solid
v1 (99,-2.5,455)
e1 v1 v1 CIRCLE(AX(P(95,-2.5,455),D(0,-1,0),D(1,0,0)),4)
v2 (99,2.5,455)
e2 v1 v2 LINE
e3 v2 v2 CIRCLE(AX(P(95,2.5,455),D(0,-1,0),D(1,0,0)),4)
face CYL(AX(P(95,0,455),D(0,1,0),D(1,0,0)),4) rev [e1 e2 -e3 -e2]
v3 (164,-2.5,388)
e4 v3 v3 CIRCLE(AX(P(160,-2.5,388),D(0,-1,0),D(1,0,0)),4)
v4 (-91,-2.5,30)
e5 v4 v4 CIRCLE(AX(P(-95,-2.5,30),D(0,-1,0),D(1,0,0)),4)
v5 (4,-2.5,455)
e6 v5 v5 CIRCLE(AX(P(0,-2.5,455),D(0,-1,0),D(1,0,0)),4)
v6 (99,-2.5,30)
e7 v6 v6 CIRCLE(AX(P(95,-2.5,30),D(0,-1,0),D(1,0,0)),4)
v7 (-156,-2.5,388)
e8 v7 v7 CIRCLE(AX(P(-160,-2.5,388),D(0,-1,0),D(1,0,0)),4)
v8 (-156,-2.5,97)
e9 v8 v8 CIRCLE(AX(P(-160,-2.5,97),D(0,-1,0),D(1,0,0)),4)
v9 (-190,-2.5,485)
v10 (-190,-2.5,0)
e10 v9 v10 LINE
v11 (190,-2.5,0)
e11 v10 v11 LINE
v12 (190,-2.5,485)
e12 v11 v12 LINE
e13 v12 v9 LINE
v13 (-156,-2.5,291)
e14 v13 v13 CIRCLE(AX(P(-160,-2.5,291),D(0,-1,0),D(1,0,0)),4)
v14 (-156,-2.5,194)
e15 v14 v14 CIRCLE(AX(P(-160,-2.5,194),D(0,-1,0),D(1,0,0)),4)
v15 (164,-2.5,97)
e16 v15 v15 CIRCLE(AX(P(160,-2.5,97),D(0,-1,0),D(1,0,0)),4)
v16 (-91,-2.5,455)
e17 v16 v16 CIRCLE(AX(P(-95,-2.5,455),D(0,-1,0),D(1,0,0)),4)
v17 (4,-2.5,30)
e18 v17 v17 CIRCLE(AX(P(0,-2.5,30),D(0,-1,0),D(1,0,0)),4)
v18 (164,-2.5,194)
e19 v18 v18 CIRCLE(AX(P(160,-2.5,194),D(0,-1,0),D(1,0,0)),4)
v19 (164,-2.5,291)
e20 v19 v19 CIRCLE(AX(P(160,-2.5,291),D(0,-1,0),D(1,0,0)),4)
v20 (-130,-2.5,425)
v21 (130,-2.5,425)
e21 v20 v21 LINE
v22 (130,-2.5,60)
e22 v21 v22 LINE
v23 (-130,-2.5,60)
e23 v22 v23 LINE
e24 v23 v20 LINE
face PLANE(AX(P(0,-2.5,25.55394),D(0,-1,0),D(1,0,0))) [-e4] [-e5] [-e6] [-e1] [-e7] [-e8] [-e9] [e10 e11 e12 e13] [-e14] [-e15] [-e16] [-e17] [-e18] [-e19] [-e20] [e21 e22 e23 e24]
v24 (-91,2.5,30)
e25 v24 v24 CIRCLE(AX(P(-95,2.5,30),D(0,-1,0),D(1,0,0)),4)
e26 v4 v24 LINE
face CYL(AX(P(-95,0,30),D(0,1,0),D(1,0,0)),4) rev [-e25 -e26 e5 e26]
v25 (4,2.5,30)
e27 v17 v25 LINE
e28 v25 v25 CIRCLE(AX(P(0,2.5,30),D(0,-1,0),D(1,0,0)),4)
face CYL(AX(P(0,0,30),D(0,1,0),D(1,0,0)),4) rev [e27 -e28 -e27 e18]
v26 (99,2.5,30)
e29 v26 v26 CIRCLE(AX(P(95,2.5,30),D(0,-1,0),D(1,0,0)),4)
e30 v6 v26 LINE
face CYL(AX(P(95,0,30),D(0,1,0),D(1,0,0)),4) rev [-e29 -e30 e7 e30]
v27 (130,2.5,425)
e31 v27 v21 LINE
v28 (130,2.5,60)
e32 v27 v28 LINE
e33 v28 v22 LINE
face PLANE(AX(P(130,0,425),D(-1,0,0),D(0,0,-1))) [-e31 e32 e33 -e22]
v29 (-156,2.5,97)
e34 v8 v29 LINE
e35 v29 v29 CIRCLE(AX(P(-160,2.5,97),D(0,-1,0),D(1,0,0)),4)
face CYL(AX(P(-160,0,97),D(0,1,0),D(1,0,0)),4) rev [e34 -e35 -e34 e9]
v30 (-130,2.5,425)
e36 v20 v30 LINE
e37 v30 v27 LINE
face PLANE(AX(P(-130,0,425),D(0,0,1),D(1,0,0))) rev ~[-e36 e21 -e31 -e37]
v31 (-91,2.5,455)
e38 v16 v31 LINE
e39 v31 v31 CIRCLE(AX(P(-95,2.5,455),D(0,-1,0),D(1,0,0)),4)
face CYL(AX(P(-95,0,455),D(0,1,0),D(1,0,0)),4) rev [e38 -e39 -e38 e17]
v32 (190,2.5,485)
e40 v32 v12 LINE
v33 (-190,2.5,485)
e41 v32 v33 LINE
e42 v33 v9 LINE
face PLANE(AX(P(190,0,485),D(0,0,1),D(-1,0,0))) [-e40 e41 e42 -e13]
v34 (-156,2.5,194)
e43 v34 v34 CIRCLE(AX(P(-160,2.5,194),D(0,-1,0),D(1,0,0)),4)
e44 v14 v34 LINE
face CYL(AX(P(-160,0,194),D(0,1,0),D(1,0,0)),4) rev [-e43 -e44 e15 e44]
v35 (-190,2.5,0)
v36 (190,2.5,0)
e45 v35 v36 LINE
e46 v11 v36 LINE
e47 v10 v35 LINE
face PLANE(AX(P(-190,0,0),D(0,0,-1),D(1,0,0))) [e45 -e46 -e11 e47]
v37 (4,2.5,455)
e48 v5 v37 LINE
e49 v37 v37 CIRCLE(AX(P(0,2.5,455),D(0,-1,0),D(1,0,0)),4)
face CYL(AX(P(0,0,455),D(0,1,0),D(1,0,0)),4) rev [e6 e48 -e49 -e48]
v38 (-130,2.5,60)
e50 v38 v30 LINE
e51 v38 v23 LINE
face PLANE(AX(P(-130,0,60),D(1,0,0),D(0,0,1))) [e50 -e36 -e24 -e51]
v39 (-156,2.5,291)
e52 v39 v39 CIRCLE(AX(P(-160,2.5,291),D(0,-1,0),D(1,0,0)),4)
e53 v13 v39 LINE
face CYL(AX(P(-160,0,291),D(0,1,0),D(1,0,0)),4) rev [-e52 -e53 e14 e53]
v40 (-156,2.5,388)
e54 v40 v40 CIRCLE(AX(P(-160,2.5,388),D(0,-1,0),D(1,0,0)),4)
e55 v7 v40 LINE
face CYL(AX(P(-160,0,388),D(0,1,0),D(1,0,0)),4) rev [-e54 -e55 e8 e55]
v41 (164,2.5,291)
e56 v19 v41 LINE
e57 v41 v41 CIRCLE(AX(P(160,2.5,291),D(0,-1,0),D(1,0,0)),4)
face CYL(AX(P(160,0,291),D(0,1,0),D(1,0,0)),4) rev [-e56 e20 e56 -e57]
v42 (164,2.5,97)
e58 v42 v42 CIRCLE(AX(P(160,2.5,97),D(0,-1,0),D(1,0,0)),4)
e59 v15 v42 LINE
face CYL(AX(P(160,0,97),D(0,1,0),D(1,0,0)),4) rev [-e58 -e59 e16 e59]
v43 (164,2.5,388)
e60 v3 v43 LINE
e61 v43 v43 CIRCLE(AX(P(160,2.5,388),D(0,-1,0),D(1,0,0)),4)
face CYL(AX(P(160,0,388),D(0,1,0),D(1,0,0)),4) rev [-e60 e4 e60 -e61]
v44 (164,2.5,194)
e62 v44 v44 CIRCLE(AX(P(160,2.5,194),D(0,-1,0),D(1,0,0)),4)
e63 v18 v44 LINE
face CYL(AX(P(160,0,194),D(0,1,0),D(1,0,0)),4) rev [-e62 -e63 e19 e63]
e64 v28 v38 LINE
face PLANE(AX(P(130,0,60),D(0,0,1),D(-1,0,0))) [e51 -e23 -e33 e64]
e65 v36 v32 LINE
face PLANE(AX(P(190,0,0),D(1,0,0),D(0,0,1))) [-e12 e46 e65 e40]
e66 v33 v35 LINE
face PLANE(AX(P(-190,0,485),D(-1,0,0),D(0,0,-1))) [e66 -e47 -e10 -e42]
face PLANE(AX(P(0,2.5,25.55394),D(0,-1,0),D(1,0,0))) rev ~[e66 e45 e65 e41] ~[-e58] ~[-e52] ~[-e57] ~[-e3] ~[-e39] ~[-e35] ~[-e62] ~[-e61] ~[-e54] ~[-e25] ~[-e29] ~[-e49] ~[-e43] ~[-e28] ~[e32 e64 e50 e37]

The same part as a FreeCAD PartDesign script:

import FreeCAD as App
import Part
import Sketcher
from FreeCAD import Vector

doc = App.newDocument("Part")
params = doc.addObject("Spreadsheet::Sheet", "Params")
for row, (alias, value) in enumerate([
    ("sketch1_diameter", "8 mm"),
    ("sketch1_width", "380 mm"),
    ("sketch1_width2", "260 mm"),
    ("sketch1_height", "485 mm"),
    ("sketch1_height2", "365 mm"),
    ("pad1_length", "5 mm"),
], start=1):
    params.set(f"A{row}", alias)
    params.set(f"B{row}", "=" + value)
    params.setAlias(f"B{row}", alias)

body = doc.addObject("PartDesign::Body", "Body")

# Sketch on XZ plane
sketch1 = doc.addObject("Sketcher::SketchObject", "Sketch")
body.addObject(sketch1)
sketch1.AttachmentSupport = (doc.XZ_Plane, [""])
sketch1.MapMode = "FlatFace"
sketch1.addGeometry([
    Part.LineSegment(Vector(190, 0, 0), Vector(190, 485, 0)),  # 0
    Part.LineSegment(Vector(190, 485, 0), Vector(-190, 485, 0)),  # 1
    Part.LineSegment(Vector(-190, 485, 0), Vector(-190, 0, 0)),  # 2
    Part.LineSegment(Vector(-190, 0, 0), Vector(190, 0, 0)),  # 3
    Part.Circle(Vector(-95, 30, 0), Vector(0, 0, 1), 4),  # 4
    Part.Circle(Vector(-160, 97, 0), Vector(0, 0, 1), 4),  # 5
    Part.Circle(Vector(-160, 194, 0), Vector(0, 0, 1), 4),  # 6
    Part.Circle(Vector(0, 30, 0), Vector(0, 0, 1), 4),  # 7
    Part.Circle(Vector(95, 30, 0), Vector(0, 0, 1), 4),  # 8
    Part.Circle(Vector(160, 97, 0), Vector(0, 0, 1), 4),  # 9
    Part.Circle(Vector(160, 194, 0), Vector(0, 0, 1), 4),  # 10
    Part.Circle(Vector(-160, 291, 0), Vector(0, 0, 1), 4),  # 11
    Part.Circle(Vector(-160, 388, 0), Vector(0, 0, 1), 4),  # 12
    Part.Circle(Vector(-95, 455, 0), Vector(0, 0, 1), 4),  # 13
    Part.LineSegment(Vector(130, 60, 0), Vector(-130, 60, 0)),  # 14
    Part.LineSegment(Vector(-130, 60, 0), Vector(-130, 425, 0)),  # 15
    Part.LineSegment(Vector(-130, 425, 0), Vector(130, 425, 0)),  # 16
    Part.LineSegment(Vector(130, 425, 0), Vector(130, 60, 0)),  # 17
    Part.Circle(Vector(160, 291, 0), Vector(0, 0, 1), 4),  # 18
    Part.Circle(Vector(0, 455, 0), Vector(0, 0, 1), 4),  # 19
    Part.Circle(Vector(160, 388, 0), Vector(0, 0, 1), 4),  # 20
    Part.Circle(Vector(95, 455, 0), Vector(0, 0, 1), 4),  # 21
], False)
sketch1.addConstraint([
    Sketcher.Constraint("Coincident", 0, 2, 1, 1),
    Sketcher.Constraint("Coincident", 1, 2, 2, 1),
    Sketcher.Constraint("Coincident", 2, 2, 3, 1),
    Sketcher.Constraint("Coincident", 3, 2, 0, 1),
    Sketcher.Constraint("Coincident", 14, 2, 15, 1),
    Sketcher.Constraint("Coincident", 15, 2, 16, 1),
    Sketcher.Constraint("Coincident", 16, 2, 17, 1),
    Sketcher.Constraint("Coincident", 17, 2, 14, 1),
    Sketcher.Constraint("Vertical", 0),
    Sketcher.Constraint("Horizontal", 1),
    Sketcher.Constraint("Vertical", 2),
    Sketcher.Constraint("Horizontal", 3),
    Sketcher.Constraint("Horizontal", 14),
    Sketcher.Constraint("Vertical", 15),
    Sketcher.Constraint("Horizontal", 16),
    Sketcher.Constraint("Vertical", 17),
    Sketcher.Constraint("Equal", 4, 5),
    Sketcher.Constraint("Equal", 5, 6),
    Sketcher.Constraint("Equal", 6, 7),
    Sketcher.Constraint("Equal", 7, 8),
    Sketcher.Constraint("Equal", 8, 9),
    Sketcher.Constraint("Equal", 9, 10),
    Sketcher.Constraint("Equal", 10, 11),
    Sketcher.Constraint("Equal", 11, 12),
    Sketcher.Constraint("Equal", 12, 13),
    Sketcher.Constraint("Equal", 13, 18),
    Sketcher.Constraint("Equal", 18, 19),
    Sketcher.Constraint("Equal", 19, 20),
    Sketcher.Constraint("Equal", 20, 21),
    Sketcher.Constraint("Symmetric", 2, 2, 3, 2, -1, 1),
    Sketcher.Constraint("Symmetric", 4, 3, 8, 3, -2),
    Sketcher.Constraint("Symmetric", 5, 3, 9, 3, -2),
    Sketcher.Constraint("Symmetric", 6, 3, 10, 3, -2),
    Sketcher.Constraint("Symmetric", 11, 3, 18, 3, -2),
    Sketcher.Constraint("Symmetric", 12, 3, 20, 3, -2),
    Sketcher.Constraint("Symmetric", 13, 3, 21, 3, -2),
    Sketcher.Constraint("PointOnObject", 7, 3, -2),
    Sketcher.Constraint("PointOnObject", 19, 3, -2),
    Sketcher.Constraint("Horizontal", 4, 3, 7, 3),
    Sketcher.Constraint("Horizontal", 13, 3, 19, 3),
    Sketcher.Constraint("Vertical", 5, 3, 6, 3),
    Sketcher.Constraint("Vertical", 6, 3, 11, 3),
    Sketcher.Constraint("Vertical", 11, 3, 12, 3),
    Sketcher.Constraint("Vertical", 4, 3, 13, 3),
    Sketcher.Constraint("Diameter", 4, 8.0),
    Sketcher.Constraint("DistanceX", 1, 2, 1, 1, 380.0),
    Sketcher.Constraint("DistanceX", 14, 2, 14, 1, 260.0),
    Sketcher.Constraint("DistanceY", 0, 1, 0, 2, 485.0),
    Sketcher.Constraint("DistanceY", 15, 1, 15, 2, 365.0),
    Sketcher.Constraint("DistanceX", 4, 3, -1, 1, 95.0),
    Sketcher.Constraint("DistanceY", -1, 1, 4, 3, 30.0),
    Sketcher.Constraint("DistanceX", 5, 3, -1, 1, 160.0),
    Sketcher.Constraint("DistanceY", -1, 1, 5, 3, 97.0),
    Sketcher.Constraint("DistanceY", -1, 1, 6, 3, 194.0),
    Sketcher.Constraint("DistanceY", -1, 1, 11, 3, 291.0),
    Sketcher.Constraint("DistanceY", -1, 1, 12, 3, 388.0),
    Sketcher.Constraint("DistanceY", -1, 1, 13, 3, 455.0),
    Sketcher.Constraint("DistanceX", 14, 2, -1, 1, 130.0),
    Sketcher.Constraint("DistanceY", -1, 1, 14, 2, 60.0),
])
sketch1.setExpression("Constraints[44]", "Params.sketch1_diameter")
sketch1.setExpression("Constraints[45]", "Params.sketch1_width")
sketch1.setExpression("Constraints[46]", "Params.sketch1_width2")
sketch1.setExpression("Constraints[47]", "Params.sketch1_height")
sketch1.setExpression("Constraints[48]", "Params.sketch1_height2")
pad1 = doc.addObject("PartDesign::Pad", "Pad")
body.addObject(pad1)
pad1.Profile = sketch1
pad1.setExpression("Length", "Params.pad1_length")
pad1.Midplane = True

doc.recompute()
